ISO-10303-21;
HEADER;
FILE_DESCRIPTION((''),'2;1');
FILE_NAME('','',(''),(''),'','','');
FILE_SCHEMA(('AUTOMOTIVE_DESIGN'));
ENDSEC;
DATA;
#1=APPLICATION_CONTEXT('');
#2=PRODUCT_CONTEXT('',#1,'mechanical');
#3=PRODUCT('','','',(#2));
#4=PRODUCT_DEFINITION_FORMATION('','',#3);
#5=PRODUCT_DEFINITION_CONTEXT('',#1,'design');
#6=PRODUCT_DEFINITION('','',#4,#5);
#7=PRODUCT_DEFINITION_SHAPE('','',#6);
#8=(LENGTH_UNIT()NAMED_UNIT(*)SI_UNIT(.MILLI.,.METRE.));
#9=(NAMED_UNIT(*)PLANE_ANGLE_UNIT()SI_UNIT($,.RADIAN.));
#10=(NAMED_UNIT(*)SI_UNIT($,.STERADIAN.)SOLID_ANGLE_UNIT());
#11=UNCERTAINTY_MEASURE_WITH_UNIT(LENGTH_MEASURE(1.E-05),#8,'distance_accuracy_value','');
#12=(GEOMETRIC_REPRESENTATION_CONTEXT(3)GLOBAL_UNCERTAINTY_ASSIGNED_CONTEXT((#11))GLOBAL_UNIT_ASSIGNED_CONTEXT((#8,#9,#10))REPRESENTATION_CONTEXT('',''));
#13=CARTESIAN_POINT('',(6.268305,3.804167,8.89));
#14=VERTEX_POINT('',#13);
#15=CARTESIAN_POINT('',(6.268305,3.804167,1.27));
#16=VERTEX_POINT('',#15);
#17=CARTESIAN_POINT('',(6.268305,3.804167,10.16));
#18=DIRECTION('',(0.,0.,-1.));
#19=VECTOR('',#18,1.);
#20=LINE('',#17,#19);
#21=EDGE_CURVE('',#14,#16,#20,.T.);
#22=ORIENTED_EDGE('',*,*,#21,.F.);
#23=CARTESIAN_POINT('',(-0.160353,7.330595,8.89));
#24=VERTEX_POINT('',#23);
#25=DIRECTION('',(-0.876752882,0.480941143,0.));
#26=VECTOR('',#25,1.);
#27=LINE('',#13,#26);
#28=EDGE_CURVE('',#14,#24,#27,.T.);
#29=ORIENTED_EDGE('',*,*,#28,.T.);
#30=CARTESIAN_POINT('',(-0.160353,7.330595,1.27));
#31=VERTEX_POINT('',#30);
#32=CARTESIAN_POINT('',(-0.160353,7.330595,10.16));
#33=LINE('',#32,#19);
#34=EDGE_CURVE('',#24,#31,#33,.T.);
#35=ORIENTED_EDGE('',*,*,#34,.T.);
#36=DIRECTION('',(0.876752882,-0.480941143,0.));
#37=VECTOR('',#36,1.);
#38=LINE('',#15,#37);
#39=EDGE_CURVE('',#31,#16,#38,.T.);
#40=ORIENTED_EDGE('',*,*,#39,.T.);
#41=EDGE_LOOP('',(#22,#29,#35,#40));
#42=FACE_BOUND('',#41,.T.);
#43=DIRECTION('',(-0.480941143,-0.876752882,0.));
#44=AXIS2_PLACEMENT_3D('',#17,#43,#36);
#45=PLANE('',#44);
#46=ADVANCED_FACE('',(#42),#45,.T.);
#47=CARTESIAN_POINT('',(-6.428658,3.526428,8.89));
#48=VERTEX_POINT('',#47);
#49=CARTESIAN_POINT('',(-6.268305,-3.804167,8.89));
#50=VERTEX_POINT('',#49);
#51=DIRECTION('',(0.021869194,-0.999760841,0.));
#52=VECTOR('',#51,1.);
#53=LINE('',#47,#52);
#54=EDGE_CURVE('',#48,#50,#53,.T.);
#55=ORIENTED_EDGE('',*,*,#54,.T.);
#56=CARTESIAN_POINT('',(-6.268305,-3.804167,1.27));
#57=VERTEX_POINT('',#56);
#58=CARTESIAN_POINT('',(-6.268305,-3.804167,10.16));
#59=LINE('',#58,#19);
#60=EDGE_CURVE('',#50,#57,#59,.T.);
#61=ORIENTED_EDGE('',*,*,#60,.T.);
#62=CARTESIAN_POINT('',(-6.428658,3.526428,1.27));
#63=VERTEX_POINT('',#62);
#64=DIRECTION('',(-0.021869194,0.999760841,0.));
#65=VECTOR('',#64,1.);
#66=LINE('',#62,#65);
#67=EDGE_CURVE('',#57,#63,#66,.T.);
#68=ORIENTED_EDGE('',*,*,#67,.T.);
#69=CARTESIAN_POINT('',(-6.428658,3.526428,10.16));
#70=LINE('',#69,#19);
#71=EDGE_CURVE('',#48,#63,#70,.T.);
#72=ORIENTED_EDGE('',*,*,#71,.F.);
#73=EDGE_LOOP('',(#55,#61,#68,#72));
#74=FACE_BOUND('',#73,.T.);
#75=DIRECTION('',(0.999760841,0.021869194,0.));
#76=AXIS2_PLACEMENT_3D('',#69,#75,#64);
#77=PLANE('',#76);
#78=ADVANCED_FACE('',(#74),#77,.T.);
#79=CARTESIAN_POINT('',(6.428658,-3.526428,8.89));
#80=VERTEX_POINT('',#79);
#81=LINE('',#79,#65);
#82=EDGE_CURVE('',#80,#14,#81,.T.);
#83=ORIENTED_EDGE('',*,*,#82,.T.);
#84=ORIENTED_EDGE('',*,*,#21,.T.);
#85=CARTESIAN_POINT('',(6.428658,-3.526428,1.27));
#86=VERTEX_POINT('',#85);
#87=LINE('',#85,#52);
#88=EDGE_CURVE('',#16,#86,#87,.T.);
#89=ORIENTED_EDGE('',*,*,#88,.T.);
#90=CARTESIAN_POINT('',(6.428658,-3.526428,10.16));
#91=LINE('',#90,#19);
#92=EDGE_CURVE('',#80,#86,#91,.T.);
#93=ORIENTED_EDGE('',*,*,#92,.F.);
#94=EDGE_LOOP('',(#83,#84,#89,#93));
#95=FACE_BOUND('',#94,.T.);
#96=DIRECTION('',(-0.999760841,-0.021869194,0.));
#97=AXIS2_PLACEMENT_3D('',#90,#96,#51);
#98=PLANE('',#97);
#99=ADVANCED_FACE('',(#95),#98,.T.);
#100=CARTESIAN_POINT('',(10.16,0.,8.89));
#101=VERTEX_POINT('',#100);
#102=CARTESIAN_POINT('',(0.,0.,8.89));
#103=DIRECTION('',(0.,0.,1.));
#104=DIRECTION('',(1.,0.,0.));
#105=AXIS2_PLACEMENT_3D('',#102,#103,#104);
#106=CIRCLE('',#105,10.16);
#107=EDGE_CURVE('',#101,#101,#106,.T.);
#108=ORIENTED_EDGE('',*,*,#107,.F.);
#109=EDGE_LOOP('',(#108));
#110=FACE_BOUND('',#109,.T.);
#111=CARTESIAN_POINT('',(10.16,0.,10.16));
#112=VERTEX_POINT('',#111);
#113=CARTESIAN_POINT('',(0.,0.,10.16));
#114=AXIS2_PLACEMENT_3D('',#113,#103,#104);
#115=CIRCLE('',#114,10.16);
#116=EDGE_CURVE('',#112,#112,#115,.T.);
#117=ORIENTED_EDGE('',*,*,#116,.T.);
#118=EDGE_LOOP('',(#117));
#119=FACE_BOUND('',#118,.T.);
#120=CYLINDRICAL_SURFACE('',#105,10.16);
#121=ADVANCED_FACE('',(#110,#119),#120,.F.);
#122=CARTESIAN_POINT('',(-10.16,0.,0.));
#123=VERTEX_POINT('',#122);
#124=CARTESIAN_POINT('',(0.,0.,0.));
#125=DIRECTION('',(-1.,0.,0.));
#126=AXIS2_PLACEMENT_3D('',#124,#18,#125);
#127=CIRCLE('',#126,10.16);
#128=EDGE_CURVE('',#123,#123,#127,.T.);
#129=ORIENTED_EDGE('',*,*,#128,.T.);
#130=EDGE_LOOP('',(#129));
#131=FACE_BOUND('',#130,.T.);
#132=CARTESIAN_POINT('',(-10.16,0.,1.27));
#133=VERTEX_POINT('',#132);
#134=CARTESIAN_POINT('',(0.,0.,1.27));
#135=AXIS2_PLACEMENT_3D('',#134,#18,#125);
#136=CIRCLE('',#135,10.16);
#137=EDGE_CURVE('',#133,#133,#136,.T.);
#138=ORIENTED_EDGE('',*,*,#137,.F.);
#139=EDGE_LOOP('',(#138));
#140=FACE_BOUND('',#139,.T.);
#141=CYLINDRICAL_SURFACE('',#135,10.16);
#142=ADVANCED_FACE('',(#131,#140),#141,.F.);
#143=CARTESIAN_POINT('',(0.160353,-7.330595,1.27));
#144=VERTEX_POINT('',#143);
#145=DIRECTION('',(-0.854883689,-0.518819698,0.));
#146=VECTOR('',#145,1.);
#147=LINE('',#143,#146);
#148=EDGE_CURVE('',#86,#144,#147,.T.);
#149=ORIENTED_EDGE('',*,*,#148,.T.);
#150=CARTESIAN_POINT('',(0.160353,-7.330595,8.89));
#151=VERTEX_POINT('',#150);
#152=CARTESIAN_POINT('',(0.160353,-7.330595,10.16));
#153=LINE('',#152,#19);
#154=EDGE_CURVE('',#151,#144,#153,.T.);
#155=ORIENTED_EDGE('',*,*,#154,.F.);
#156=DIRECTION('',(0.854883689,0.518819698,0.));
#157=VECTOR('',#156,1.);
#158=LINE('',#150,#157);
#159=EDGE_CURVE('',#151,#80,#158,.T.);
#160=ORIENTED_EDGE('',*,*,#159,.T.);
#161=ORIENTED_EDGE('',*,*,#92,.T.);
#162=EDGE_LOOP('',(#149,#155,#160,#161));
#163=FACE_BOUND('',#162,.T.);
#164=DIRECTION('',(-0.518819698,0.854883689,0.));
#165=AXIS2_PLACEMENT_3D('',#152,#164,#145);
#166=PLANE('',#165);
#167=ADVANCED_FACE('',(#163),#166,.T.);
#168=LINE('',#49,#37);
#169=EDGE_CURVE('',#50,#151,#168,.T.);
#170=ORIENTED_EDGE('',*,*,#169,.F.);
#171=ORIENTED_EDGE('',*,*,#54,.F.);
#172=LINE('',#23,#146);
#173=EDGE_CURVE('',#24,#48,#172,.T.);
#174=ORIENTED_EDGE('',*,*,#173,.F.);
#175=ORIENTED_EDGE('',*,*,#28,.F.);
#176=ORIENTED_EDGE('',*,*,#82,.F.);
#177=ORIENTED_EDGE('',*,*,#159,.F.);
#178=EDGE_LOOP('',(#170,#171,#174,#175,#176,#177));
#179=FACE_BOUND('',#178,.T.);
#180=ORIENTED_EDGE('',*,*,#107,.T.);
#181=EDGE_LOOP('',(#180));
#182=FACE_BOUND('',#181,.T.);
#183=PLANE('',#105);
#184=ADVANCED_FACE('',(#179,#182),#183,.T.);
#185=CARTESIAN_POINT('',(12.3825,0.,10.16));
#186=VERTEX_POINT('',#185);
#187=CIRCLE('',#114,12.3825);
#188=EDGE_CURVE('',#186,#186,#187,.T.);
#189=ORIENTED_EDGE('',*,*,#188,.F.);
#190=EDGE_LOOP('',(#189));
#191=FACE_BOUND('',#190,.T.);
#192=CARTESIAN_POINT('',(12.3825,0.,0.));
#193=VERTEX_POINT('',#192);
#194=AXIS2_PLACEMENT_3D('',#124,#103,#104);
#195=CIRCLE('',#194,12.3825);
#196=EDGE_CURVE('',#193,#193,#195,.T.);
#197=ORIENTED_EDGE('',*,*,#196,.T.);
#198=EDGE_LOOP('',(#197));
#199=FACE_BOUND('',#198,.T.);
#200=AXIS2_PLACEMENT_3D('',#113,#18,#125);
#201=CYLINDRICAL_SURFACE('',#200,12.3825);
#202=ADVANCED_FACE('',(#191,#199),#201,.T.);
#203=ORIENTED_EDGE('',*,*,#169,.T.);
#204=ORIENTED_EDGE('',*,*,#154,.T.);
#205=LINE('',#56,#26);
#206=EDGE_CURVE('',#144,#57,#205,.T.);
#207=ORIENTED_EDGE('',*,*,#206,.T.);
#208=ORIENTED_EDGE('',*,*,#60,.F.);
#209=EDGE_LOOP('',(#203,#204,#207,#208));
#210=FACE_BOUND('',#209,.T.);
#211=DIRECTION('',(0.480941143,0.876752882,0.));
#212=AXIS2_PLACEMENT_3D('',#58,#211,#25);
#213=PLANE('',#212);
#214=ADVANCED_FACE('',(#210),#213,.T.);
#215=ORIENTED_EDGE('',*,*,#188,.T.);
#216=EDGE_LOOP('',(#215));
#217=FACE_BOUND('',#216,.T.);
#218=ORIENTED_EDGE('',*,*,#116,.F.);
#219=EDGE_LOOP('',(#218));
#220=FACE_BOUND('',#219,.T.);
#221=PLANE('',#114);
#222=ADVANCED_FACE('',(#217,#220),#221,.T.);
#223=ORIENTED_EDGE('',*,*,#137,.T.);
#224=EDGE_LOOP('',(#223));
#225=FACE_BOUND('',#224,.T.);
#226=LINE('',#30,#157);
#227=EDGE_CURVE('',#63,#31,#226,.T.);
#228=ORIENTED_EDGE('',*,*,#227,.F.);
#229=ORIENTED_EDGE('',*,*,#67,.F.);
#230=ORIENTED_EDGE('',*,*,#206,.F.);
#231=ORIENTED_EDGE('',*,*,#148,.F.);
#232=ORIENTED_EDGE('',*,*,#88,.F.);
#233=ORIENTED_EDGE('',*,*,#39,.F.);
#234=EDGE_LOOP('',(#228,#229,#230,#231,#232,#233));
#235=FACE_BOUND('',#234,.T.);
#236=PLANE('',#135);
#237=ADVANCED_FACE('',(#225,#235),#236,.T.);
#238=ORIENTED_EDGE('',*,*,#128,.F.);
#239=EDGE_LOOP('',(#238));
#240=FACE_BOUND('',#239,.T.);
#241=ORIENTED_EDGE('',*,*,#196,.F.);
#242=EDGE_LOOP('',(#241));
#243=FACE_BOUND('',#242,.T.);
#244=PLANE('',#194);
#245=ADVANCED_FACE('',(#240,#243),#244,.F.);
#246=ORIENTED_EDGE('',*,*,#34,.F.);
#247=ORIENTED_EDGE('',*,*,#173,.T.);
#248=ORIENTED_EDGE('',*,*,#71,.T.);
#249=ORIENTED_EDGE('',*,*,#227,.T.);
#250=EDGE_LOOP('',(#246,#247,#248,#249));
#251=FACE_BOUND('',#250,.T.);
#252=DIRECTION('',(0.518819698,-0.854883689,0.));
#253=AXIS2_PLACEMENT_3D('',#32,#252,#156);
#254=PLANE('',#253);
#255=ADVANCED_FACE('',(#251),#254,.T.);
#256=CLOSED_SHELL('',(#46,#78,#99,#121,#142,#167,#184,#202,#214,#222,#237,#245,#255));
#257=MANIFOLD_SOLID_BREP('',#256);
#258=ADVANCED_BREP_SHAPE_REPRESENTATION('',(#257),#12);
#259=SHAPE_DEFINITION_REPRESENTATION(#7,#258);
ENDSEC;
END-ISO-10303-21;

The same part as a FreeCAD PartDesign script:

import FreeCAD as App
import Part
import Sketcher
from FreeCAD import Vector
Q = App.Units.Quantity


def add_polygon(sketch, points):
    """Adds a closed chain of lines whose ends are joined by coincident constraints."""
    first, n = sketch.GeometryCount, len(points)
    for a, b in zip(points, points[1:] + points[:1]):
        sketch.addGeometry(Part.LineSegment(App.Vector(*a, 0), App.Vector(*b, 0)), False)
    for i in range(n):
        sketch.addConstraint(Sketcher.Constraint("Coincident", first + i, 2, first + (i + 1) % n, 1))

doc = App.newDocument("Part")
params = doc.addObject("Spreadsheet::Sheet", "Params")
for row, (alias, value) in enumerate([
    ("sketch1_diameter", "0.975 in"),
    ("pad1_length", "0.4 in"),
    ("sketch2_diameter", "0.8 in"),
    ("pocket1_length", "0.05 in"),
    ("sketch3_diameter", "0.8 in"),
    ("pocket2_length", "0.05 in"),
], start=1):
    params.set(f"A{row}", alias)
    params.set(f"B{row}", "=" + value)
    params.setAlias(f"B{row}", alias)

body = doc.addObject("PartDesign::Body", "Body")

sketch1 = body.newObject("Sketcher::SketchObject", "Sketch")
sketch1.AttachmentSupport = (doc.getObject("XY_Plane"), [""])
sketch1.MapMode = "FlatFace"
sketch1.addGeometry(Part.Circle(Vector(0, 0, 0), Vector(0, 0, 1), 12.3825), False)
add_polygon(sketch1, [(6.428658, -3.526428), (0.160353, -7.330595), (-6.268305, -3.804167), (-6.428658, 3.526428), (-0.160353, 7.330595), (6.268305, 3.804167)])
sketch1.addConstraint([
    Sketcher.Constraint("Coincident", 0, 3, -1, 1),
    Sketcher.Constraint("Symmetric", 1, 2, 4, 2, -1, 1),
    Sketcher.Constraint("Symmetric", 2, 2, 5, 2, -1, 1),
    Sketcher.Constraint("Symmetric", 3, 2, 6, 2, -1, 1),
    Sketcher.Constraint("Equal", 1, 2),
    Sketcher.Constraint("Equal", 2, 3),
    Sketcher.Constraint("Diameter", 0, Q("0.975 in")),
    Sketcher.Constraint("Distance", 1, Q("7.332348 mm")),
    Sketcher.Constraint("DistanceY", -1, 1, 3, 2, Q("3.526428 mm")),
    Sketcher.Constraint("DistanceY", 1, 2, 2, 2, Q("3.526428 mm")),
    Sketcher.Constraint("DistanceX", 3, 2, 1, 2, Q("6.58901 mm")),
])
sketch1.setExpression("Constraints[12]", "Params.sketch1_diameter")
pad1 = body.newObject("PartDesign::Pad", "Pad")
pad1.Profile = sketch1
pad1.setExpression("Length", "Params.pad1_length")

sketch2 = body.newObject("Sketcher::SketchObject", "Sketch001")
sketch2.AttachmentSupport = (doc.getObject("XY_Plane"), [""])
sketch2.MapMode = "FlatFace"
sketch2.AttachmentOffset = App.Placement(Vector(0, 0, 0.4 * 25.4), App.Rotation())
sketch2.addGeometry(Part.Circle(Vector(0, 0, 0), Vector(0, 0, 1), 10.16), False)
sketch2.addConstraint([
    Sketcher.Constraint("Coincident", 0, 3, -1, 1),
    Sketcher.Constraint("Diameter", 0, Q("0.8 in")),
])
sketch2.setExpression("Constraints[1]", "Params.sketch2_diameter")
pocket1 = body.newObject("PartDesign::Pocket", "Pocket")
pocket1.Profile = sketch2
pocket1.setExpression("Length", "Params.pocket1_length")

sketch3 = body.newObject("Sketcher::SketchObject", "Sketch002")
sketch3.AttachmentSupport = (doc.getObject("XY_Plane"), [""])
sketch3.MapMode = "FlatFace"
sketch3.AttachmentOffset = App.Placement(Vector(0, 0, 0.05 * 25.4), App.Rotation())
sketch3.addGeometry(Part.Circle(Vector(0, 0, 0), Vector(0, 0, 1), 10.16), False)
sketch3.addConstraint([
    Sketcher.Constraint("Coincident", 0, 3, -1, 1),
    Sketcher.Constraint("Diameter", 0, Q("0.8 in")),
])
sketch3.setExpression("Constraints[1]", "Params.sketch3_diameter")
pocket2 = body.newObject("PartDesign::Pocket", "Pocket001")
pocket2.Profile = sketch3
pocket2.setExpression("Length", "Params.pocket2_length")

doc.recompute()
